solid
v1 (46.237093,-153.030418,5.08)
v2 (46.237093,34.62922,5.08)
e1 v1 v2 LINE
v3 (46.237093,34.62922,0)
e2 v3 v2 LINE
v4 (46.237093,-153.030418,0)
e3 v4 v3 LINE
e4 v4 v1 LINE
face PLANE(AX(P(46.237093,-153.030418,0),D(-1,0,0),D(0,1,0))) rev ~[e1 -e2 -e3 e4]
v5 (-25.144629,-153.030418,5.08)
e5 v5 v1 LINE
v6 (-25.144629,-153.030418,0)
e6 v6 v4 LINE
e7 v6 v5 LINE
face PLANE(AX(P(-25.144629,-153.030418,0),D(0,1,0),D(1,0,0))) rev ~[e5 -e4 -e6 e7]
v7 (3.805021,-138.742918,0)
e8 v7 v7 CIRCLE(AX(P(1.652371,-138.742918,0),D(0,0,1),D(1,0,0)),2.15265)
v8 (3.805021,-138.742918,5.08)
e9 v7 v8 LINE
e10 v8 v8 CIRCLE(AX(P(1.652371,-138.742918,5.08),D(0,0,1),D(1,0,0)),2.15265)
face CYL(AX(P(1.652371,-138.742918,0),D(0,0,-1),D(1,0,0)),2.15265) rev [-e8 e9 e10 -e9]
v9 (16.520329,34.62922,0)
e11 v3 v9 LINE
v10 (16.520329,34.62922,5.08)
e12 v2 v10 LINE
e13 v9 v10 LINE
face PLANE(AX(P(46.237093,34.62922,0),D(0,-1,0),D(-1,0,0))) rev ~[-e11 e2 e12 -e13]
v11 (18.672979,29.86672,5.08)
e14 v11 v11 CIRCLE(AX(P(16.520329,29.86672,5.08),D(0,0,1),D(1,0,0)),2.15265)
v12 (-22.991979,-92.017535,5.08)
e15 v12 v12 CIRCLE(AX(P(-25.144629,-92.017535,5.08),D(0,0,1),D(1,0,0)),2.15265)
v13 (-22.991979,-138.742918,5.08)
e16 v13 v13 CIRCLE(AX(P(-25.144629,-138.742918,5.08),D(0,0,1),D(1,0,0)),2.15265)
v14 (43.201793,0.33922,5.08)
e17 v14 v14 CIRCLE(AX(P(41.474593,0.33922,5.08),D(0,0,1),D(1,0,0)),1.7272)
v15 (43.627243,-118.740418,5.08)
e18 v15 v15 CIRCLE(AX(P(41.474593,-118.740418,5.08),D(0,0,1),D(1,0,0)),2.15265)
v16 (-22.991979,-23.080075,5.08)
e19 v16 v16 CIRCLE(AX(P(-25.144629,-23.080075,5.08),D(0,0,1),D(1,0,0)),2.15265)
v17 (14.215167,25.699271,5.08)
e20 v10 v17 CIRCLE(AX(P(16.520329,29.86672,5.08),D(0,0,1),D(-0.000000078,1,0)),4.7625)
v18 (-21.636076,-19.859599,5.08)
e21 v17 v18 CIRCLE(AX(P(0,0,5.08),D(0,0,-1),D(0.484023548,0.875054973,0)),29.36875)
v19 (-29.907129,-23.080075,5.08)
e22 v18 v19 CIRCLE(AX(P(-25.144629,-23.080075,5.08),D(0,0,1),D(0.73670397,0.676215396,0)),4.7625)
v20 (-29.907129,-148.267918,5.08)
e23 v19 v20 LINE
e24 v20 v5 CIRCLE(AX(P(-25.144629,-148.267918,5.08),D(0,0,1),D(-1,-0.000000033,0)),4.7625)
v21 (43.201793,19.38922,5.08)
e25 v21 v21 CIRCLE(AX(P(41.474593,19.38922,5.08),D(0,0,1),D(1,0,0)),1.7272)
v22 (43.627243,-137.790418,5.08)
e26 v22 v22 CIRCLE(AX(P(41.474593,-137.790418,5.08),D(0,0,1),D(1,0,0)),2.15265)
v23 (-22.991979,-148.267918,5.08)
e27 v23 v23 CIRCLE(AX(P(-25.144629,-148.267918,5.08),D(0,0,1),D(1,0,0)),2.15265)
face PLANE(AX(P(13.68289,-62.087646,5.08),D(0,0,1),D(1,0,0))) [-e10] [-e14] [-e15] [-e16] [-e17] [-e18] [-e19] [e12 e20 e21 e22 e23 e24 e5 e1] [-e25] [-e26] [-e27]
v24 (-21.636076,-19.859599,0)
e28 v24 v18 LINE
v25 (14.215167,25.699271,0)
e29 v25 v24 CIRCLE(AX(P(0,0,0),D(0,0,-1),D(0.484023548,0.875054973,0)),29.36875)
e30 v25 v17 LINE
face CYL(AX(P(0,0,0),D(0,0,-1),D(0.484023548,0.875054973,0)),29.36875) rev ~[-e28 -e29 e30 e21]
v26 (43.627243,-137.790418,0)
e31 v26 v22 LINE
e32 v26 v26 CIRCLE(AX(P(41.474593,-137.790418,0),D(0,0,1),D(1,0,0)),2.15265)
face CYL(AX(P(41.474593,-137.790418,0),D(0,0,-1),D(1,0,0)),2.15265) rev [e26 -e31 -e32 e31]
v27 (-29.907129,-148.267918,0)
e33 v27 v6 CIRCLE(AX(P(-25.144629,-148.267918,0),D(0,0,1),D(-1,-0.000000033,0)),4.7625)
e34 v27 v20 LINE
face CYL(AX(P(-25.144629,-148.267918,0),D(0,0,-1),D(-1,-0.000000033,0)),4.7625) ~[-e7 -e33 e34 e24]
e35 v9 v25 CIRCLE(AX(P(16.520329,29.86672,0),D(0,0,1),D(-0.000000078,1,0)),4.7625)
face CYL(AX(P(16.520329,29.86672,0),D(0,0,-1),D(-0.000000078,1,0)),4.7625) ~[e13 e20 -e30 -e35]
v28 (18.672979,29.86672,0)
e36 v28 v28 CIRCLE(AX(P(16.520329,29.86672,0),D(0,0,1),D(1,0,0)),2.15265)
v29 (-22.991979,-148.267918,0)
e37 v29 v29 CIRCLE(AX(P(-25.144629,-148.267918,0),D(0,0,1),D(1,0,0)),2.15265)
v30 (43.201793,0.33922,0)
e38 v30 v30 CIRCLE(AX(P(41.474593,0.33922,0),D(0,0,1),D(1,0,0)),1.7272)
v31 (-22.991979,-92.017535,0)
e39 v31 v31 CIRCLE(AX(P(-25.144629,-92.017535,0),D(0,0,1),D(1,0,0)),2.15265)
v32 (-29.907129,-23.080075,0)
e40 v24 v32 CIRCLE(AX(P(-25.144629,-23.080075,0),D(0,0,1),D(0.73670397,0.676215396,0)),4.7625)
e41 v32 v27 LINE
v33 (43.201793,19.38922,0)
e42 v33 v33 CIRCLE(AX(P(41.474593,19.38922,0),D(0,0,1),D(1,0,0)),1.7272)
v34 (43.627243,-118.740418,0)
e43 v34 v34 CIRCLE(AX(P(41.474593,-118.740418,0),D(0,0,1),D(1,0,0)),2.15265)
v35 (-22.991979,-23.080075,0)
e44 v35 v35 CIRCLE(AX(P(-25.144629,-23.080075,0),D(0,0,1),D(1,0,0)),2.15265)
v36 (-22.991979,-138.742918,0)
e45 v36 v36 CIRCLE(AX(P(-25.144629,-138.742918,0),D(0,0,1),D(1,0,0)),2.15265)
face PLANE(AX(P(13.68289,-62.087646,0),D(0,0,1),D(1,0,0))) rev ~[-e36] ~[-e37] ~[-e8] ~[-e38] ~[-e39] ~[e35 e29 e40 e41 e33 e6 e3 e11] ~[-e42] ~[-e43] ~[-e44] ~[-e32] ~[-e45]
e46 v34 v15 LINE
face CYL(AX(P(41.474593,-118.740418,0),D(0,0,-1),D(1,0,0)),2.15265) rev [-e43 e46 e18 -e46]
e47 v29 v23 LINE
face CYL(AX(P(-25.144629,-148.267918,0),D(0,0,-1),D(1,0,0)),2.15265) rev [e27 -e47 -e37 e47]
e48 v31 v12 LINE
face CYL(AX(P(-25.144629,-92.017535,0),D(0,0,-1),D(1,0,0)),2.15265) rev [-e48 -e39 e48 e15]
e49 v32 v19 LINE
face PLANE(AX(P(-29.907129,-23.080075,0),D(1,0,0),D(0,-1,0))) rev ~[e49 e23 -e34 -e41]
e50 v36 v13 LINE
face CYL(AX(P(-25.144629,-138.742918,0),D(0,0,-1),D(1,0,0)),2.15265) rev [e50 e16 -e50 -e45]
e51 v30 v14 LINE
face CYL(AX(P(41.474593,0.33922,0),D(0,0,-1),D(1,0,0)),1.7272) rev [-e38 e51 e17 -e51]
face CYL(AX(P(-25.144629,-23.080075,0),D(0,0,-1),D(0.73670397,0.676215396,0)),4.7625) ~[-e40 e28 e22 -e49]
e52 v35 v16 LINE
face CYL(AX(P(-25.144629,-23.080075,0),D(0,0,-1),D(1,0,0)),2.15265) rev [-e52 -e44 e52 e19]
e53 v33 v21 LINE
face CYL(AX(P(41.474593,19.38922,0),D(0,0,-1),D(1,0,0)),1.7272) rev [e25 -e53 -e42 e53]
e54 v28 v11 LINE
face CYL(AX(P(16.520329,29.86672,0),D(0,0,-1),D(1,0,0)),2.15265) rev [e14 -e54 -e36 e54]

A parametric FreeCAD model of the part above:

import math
import FreeCAD as App
import Part
import Sketcher
from FreeCAD import Vector
Q = App.Units.Quantity

doc = App.newDocument("Part")
body = doc.addObject("PartDesign::Body", "Body")

sketch1 = body.newObject("Sketcher::SketchObject", "Sketch")
sketch1.AttachmentSupport = (doc.getObject("XY_Plane"), [""])
sketch1.MapMode = "FlatFace"
sketch1.addGeometry(Part.LineSegment(Vector(-25.144629, -153.030418, 0), Vector(46.237093, -153.030418, 0)), False)
sketch1.addGeometry(Part.LineSegment(Vector(46.237093, -153.030418, 0), Vector(46.237093, 34.62922, 0)), False)
sketch1.addGeometry(Part.LineSegment(Vector(46.237093, 34.62922, 0), Vector(16.520329, 34.62922, 0)), False)
sketch1.addGeometry(Part.ArcOfCircle(Part.Circle(Vector(16.520329, 29.86672, 0), Vector(0, 0, 1), 4.7625), math.radians(90.000004), math.radians(241.051479)), False)
sketch1.addGeometry(Part.ArcOfCircle(Part.Circle(Vector(0, 0, 0), Vector(0, 0, 1), 29.36875), math.radians(-137.451401), math.radians(61.051482)), False)
sketch1.addGeometry(Part.ArcOfCircle(Part.Circle(Vector(-25.144629, -23.080075, 0), Vector(0, 0, 1), 4.7625), math.radians(42.548604), math.radians(180.000001)), False)
sketch1.addGeometry(Part.LineSegment(Vector(-29.907129, -23.080075, 0), Vector(-29.907129, -148.267918, 0)), False)
sketch1.addGeometry(Part.ArcOfCircle(Part.Circle(Vector(-25.144629, -148.267918, 0), Vector(0, 0, 1), 4.7625), math.radians(-179.999998), math.radians(-90.000002)), False)
sketch1.addGeometry(Part.Circle(Vector(-25.144629, -148.267918, 0), Vector(0, 0, 1), 2.15265), False)
sketch1.addGeometry(Part.Circle(Vector(-25.144629, -138.742918, 0), Vector(0, 0, 1), 2.15265), False)
sketch1.addGeometry(Part.Circle(Vector(1.652371, -138.742918, 0), Vector(0, 0, 1), 2.15265), False)
sketch1.addGeometry(Part.Circle(Vector(-25.144629, -92.017535, 0), Vector(0, 0, 1), 2.15265), False)
sketch1.addGeometry(Part.Circle(Vector(41.474593, -137.790418, 0), Vector(0, 0, 1), 2.15265), False)
sketch1.addGeometry(Part.Circle(Vector(41.474593, -118.740418, 0), Vector(0, 0, 1), 2.15265), False)
sketch1.addGeometry(Part.Circle(Vector(-25.144629, -23.080075, 0), Vector(0, 0, 1), 2.15265), False)
sketch1.addGeometry(Part.Circle(Vector(16.520329, 29.86672, 0), Vector(0, 0, 1), 2.15265), False)
sketch1.addGeometry(Part.Circle(Vector(41.474593, 0.33922, 0), Vector(0, 0, 1), 1.7272), False)
sketch1.addGeometry(Part.Circle(Vector(41.474593, 19.38922, 0), Vector(0, 0, 1), 1.7272), False)
sketch1.addConstraint(Sketcher.Constraint("Coincident", 0, 2, 1, 1))
sketch1.addConstraint(Sketcher.Constraint("Coincident", 1, 2, 2, 1))
sketch1.addConstraint(Sketcher.Constraint("Tangent", 2, 2, 3, 1))
sketch1.addConstraint(Sketcher.Constraint("Tangent", 3, 2, 4, 2))
sketch1.addConstraint(Sketcher.Constraint("Tangent", 4, 1, 5, 1))
sketch1.addConstraint(Sketcher.Constraint("Tangent", 5, 2, 6, 1))
sketch1.addConstraint(Sketcher.Constraint("Tangent", 6, 2, 7, 1))
sketch1.addConstraint(Sketcher.Constraint("Tangent", 7, 2, 0, 1))
sketch1.addConstraint(Sketcher.Constraint("Horizontal", 0))
sketch1.addConstraint(Sketcher.Constraint("Vertical", 1))
sketch1.addConstraint(Sketcher.Constraint("Horizontal", 2))
sketch1.addConstraint(Sketcher.Constraint("Vertical", 6))
sketch1.addConstraint(Sketcher.Constraint("Coincident", 4, 3, -1, 1))
sketch1.addConstraint(Sketcher.Constraint("Coincident", 8, 3, 7, 3))
sketch1.addConstraint(Sketcher.Constraint("Coincident", 14, 3, 5, 3))
sketch1.addConstraint(Sketcher.Constraint("Coincident", 15, 3, 3, 3))
sketch1.addConstraint(Sketcher.Constraint("Equal", 3, 5))
sketch1.addConstraint(Sketcher.Constraint("Equal", 5, 7))
sketch1.addConstraint(Sketcher.Constraint("Equal", 8, 9))
sketch1.addConstraint(Sketcher.Constraint("Equal", 9, 10))
sketch1.addConstraint(Sketcher.Constraint("Equal", 10, 11))
sketch1.addConstraint(Sketcher.Constraint("Equal", 11, 12))
sketch1.addConstraint(Sketcher.Constraint("Equal", 12, 13))
sketch1.addConstraint(Sketcher.Constraint("Equal", 13, 14))
sketch1.addConstraint(Sketcher.Constraint("Equal", 14, 15))
sketch1.addConstraint(Sketcher.Constraint("Equal", 16, 17))
sketch1.addConstraint(Sketcher.Constraint("Horizontal", 9, 3, 10, 3))
sketch1.addConstraint(Sketcher.Constraint("Vertical", 8, 3, 9, 3))
sketch1.addConstraint(Sketcher.Constraint("Vertical", 9, 3, 11, 3))
sketch1.addConstraint(Sketcher.Constraint("Vertical", 12, 3, 13, 3))
sketch1.addConstraint(Sketcher.Constraint("Vertical", 13, 3, 16, 3))
sketch1.addConstraint(Sketcher.Constraint("Vertical", 16, 3, 17, 3))
sketch1.addConstraint(Sketcher.Constraint("Diameter", 16, Q("0.136 in")))
sketch1.addConstraint(Sketcher.Constraint("Radius", 3, Q("0.1875 in")))
sketch1.addConstraint(Sketcher.Constraint("Radius", 4, Q("1.15625 in")))
sketch1.addConstraint(Sketcher.Constraint("Diameter", 8, Q("0.1695 in")))
sketch1.addConstraint(Sketcher.Constraint("DistanceY", 0, 2, 12, 3, Q("0.6 in")))
sketch1.addConstraint(Sketcher.Constraint("DistanceY", 17, 3, 1, 2, Q("0.6 in")))
sketch1.addConstraint(Sketcher.Constraint("DistanceY", 12, 3, 13, 3, Q("0.75 in")))
sketch1.addConstraint(Sketcher.Constraint("DistanceY", 16, 3, 17, 3, Q("0.75 in")))
sketch1.addConstraint(Sketcher.Constraint("DistanceY", 7, 3, 9, 3, Q("0.375 in")))
sketch1.addConstraint(Sketcher.Constraint("DistanceX", 9, 3, 10, 3, Q("1.055 in")))
sketch1.addConstraint(Sketcher.Constraint("DistanceX", 12, 3, 0, 2, Q("0.1875 in")))
sketch1.addConstraint(Sketcher.Constraint("DistanceX", 0, 1, 0, 2, Q("71.381722 mm")))
sketch1.addConstraint(Sketcher.Constraint("DistanceY", 1, 1, 1, 2, Q("187.659638 mm")))
sketch1.addConstraint(Sketcher.Constraint("DistanceY", 4, 1, -1, 1, Q("19.859599 mm")))
sketch1.addConstraint(Sketcher.Constraint("DistanceX", 2, 2, 2, 1, Q("29.716764 mm")))
sketch1.addConstraint(Sketcher.Constraint("DistanceY", 11, 3, 5, 3, Q("68.93746 mm")))
pad1 = body.newObject("PartDesign::Pad", "Pad")
pad1.Profile = sketch1
pad1.Length = Q("0.2 in")

doc.recompute()
